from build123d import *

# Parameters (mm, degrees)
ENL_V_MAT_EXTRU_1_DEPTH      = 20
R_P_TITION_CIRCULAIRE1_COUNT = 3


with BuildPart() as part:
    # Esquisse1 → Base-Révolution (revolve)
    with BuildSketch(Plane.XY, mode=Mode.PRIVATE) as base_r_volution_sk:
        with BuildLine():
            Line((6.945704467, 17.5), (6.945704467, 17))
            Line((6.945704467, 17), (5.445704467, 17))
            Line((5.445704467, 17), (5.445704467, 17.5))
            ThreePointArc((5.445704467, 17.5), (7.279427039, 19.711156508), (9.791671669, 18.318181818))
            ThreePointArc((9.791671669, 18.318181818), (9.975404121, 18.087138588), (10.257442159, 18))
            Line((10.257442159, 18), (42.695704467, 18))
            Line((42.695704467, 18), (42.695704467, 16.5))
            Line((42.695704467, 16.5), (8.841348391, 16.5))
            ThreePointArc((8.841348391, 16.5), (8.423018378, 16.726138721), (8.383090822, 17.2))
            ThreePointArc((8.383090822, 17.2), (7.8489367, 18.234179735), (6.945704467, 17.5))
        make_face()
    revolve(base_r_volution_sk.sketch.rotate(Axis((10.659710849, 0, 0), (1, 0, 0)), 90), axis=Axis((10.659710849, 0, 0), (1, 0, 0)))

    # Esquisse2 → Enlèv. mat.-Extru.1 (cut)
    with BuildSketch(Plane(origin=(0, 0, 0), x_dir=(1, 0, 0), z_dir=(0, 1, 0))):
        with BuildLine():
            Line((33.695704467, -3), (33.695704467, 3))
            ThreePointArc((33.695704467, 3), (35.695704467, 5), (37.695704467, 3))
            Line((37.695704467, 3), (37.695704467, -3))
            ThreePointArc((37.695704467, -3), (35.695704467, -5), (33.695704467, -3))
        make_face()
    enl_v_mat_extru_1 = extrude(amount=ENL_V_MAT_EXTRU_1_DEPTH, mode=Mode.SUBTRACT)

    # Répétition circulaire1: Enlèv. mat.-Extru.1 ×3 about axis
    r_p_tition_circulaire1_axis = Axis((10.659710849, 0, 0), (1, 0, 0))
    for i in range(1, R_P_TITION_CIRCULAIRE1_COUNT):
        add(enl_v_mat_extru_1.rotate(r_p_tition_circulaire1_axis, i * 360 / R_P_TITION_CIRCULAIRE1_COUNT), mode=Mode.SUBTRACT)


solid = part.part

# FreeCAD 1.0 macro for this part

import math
import FreeCAD as App
import Part
import Sketcher

V = App.Vector
Q = App.Units.Quantity

doc = App.newDocument("Part")
body = doc.addObject("PartDesign::Body", "Body")

# Sketch on XY plane
sketch1 = body.newObject("Sketcher::SketchObject", "Sketch")
sketch1.AttachmentSupport = (doc.getObject("XY_Plane"), [""])
sketch1.MapMode = "FlatFace"
sketch1.addGeometry([
    Part.LineSegment(V(6.9, 17, 0), V(6.9, 17.5, 0)),  # 0
    Part.ArcOfCircle(Part.Circle(V(7.7, 17.5, 0), V(0, 0, 1), 0.8), math.radians(-24), math.radians(180)),  # 1
    Part.ArcOfCircle(Part.Circle(V(8.8, 17, 0), V(0, 0, 1), 0.5), math.radians(156), math.radians(270)),  # 2
    Part.LineSegment(V(8.8, 16.5, 0), V(42.7, 16.5, 0)),  # 3
    Part.LineSegment(V(42.7, 16.5, 0), V(42.7, 18, 0)),  # 4
    Part.LineSegment(V(42.7, 18, 0), V(10.3, 18, 0)),  # 5
    Part.ArcOfCircle(Part.Circle(V(10.3, 18.5, 0), V(0, 0, 1), 0.5), math.radians(-159), math.radians(-90)),  # 6
    Part.ArcOfCircle(Part.Circle(V(7.7, 17.5, 0), V(0, 0, 1), 2.2), math.radians(21), math.radians(180)),  # 7
    Part.LineSegment(V(5.4, 17.5, 0), V(5.4, 17, 0)),  # 8
    Part.LineSegment(V(5.4, 17, 0), V(6.9, 17, 0)),  # 9
], False)
sketch1.addConstraint([
    Sketcher.Constraint("Tangent", 0, 2, 1, 2),
    Sketcher.Constraint("Tangent", 1, 1, 2, 1),
    Sketcher.Constraint("Tangent", 2, 2, 3, 1),
    Sketcher.Constraint("Coincident", 3, 2, 4, 1),
    Sketcher.Constraint("Coincident", 4, 2, 5, 1),
    Sketcher.Constraint("Tangent", 5, 2, 6, 2),
    Sketcher.Constraint("Tangent", 6, 1, 7, 1),
    Sketcher.Constraint("Tangent", 7, 2, 8, 1),
    Sketcher.Constraint("Coincident", 8, 2, 9, 1),
    Sketcher.Constraint("Coincident", 9, 2, 0, 1),
    Sketcher.Constraint("Vertical", 0),
    Sketcher.Constraint("Horizontal", 3),
    Sketcher.Constraint("Vertical", 4),
    Sketcher.Constraint("Horizontal", 5),
    Sketcher.Constraint("Vertical", 8),
    Sketcher.Constraint("Horizontal", 9),
    Sketcher.Constraint("Coincident", 7, 3, 1, 3),
    Sketcher.Constraint("Equal", 2, 6),
    Sketcher.Constraint("Horizontal", 2, 3, 8, 2),
    Sketcher.Constraint("Equal", 9, 4),
    Sketcher.Constraint("Radius", 2, Q("0.5 mm")),
    Sketcher.Constraint("Radius", 1, Q("0.75 mm")),
    Sketcher.Constraint("Radius", 7, Q("2.25 mm")),
    Sketcher.Constraint("DistanceY", 0, 1, 0, 2, Q("0.5 mm")),
    Sketcher.Constraint("DistanceY", -1, 1, 2, 3, Q("17 mm")),
    Sketcher.Constraint("DistanceX", 1, 3, 3, 2, Q("35 mm")),
    Sketcher.Constraint("DistanceX", -1, 1, 2, 3, Q("8.841348 mm")),
])
revolution = body.newObject("PartDesign::Revolution", "Revolution")
revolution.Profile = sketch1
revolution.ReferenceAxis = (sketch1, ["H_Axis"])
revolution.Angle = 360

# Sketch on XZ plane
sketch2 = body.newObject("Sketcher::SketchObject", "Sketch001")
sketch2.AttachmentSupport = (doc.getObject("XZ_Plane"), [""])
sketch2.MapMode = "FlatFace"
sketch2.addGeometry([
    Part.LineSegment(V(33.7, -3, 0), V(33.7, 3, 0)),
    Part.ArcOfCircle(Part.Circle(V(35.7, 3, 0), V(0, 0, 1), 2), math.radians(0), math.radians(180)),
    Part.LineSegment(V(37.7, 3, 0), V(37.7, -3, 0)),
    Part.ArcOfCircle(Part.Circle(V(35.7, -3, 0), V(0, 0, 1), 2), math.radians(180), math.radians(360)),
], False)
sketch2.addConstraint([
    Sketcher.Constraint("Tangent", 0, 2, 1, 2),
    Sketcher.Constraint("Tangent", 1, 1, 2, 1),
    Sketcher.Constraint("Tangent", 2, 2, 3, 2),
    Sketcher.Constraint("Tangent", 3, 1, 0, 1),
    Sketcher.Constraint("Vertical", 0),
    Sketcher.Constraint("Vertical", 2),
    Sketcher.Constraint("Radius", 1, Q("2 mm")),
    Sketcher.Constraint("DistanceY", 0, 1, 0, 2, Q("6 mm")),
    Sketcher.Constraint("DistanceY", -1, 1, 1, 3, Q("3 mm")),
    Sketcher.Constraint("DistanceX", -1, 1, 1, 3, Q("35.695704 mm")),
])
pocket1 = body.newObject("PartDesign::Pocket", "Pocket")
pocket1.Profile = sketch2
pocket1.Length = 20
doc.recompute()

polarpattern = body.newObject("PartDesign::PolarPattern", "PolarPattern")
polarpattern.Originals = [pocket1]
polarpattern.Axis = (doc.getObject("X_Axis"), [""])
polarpattern.Angle = 360
polarpattern.Occurrences = 3
body.Tip = polarpattern

doc.recompute()
